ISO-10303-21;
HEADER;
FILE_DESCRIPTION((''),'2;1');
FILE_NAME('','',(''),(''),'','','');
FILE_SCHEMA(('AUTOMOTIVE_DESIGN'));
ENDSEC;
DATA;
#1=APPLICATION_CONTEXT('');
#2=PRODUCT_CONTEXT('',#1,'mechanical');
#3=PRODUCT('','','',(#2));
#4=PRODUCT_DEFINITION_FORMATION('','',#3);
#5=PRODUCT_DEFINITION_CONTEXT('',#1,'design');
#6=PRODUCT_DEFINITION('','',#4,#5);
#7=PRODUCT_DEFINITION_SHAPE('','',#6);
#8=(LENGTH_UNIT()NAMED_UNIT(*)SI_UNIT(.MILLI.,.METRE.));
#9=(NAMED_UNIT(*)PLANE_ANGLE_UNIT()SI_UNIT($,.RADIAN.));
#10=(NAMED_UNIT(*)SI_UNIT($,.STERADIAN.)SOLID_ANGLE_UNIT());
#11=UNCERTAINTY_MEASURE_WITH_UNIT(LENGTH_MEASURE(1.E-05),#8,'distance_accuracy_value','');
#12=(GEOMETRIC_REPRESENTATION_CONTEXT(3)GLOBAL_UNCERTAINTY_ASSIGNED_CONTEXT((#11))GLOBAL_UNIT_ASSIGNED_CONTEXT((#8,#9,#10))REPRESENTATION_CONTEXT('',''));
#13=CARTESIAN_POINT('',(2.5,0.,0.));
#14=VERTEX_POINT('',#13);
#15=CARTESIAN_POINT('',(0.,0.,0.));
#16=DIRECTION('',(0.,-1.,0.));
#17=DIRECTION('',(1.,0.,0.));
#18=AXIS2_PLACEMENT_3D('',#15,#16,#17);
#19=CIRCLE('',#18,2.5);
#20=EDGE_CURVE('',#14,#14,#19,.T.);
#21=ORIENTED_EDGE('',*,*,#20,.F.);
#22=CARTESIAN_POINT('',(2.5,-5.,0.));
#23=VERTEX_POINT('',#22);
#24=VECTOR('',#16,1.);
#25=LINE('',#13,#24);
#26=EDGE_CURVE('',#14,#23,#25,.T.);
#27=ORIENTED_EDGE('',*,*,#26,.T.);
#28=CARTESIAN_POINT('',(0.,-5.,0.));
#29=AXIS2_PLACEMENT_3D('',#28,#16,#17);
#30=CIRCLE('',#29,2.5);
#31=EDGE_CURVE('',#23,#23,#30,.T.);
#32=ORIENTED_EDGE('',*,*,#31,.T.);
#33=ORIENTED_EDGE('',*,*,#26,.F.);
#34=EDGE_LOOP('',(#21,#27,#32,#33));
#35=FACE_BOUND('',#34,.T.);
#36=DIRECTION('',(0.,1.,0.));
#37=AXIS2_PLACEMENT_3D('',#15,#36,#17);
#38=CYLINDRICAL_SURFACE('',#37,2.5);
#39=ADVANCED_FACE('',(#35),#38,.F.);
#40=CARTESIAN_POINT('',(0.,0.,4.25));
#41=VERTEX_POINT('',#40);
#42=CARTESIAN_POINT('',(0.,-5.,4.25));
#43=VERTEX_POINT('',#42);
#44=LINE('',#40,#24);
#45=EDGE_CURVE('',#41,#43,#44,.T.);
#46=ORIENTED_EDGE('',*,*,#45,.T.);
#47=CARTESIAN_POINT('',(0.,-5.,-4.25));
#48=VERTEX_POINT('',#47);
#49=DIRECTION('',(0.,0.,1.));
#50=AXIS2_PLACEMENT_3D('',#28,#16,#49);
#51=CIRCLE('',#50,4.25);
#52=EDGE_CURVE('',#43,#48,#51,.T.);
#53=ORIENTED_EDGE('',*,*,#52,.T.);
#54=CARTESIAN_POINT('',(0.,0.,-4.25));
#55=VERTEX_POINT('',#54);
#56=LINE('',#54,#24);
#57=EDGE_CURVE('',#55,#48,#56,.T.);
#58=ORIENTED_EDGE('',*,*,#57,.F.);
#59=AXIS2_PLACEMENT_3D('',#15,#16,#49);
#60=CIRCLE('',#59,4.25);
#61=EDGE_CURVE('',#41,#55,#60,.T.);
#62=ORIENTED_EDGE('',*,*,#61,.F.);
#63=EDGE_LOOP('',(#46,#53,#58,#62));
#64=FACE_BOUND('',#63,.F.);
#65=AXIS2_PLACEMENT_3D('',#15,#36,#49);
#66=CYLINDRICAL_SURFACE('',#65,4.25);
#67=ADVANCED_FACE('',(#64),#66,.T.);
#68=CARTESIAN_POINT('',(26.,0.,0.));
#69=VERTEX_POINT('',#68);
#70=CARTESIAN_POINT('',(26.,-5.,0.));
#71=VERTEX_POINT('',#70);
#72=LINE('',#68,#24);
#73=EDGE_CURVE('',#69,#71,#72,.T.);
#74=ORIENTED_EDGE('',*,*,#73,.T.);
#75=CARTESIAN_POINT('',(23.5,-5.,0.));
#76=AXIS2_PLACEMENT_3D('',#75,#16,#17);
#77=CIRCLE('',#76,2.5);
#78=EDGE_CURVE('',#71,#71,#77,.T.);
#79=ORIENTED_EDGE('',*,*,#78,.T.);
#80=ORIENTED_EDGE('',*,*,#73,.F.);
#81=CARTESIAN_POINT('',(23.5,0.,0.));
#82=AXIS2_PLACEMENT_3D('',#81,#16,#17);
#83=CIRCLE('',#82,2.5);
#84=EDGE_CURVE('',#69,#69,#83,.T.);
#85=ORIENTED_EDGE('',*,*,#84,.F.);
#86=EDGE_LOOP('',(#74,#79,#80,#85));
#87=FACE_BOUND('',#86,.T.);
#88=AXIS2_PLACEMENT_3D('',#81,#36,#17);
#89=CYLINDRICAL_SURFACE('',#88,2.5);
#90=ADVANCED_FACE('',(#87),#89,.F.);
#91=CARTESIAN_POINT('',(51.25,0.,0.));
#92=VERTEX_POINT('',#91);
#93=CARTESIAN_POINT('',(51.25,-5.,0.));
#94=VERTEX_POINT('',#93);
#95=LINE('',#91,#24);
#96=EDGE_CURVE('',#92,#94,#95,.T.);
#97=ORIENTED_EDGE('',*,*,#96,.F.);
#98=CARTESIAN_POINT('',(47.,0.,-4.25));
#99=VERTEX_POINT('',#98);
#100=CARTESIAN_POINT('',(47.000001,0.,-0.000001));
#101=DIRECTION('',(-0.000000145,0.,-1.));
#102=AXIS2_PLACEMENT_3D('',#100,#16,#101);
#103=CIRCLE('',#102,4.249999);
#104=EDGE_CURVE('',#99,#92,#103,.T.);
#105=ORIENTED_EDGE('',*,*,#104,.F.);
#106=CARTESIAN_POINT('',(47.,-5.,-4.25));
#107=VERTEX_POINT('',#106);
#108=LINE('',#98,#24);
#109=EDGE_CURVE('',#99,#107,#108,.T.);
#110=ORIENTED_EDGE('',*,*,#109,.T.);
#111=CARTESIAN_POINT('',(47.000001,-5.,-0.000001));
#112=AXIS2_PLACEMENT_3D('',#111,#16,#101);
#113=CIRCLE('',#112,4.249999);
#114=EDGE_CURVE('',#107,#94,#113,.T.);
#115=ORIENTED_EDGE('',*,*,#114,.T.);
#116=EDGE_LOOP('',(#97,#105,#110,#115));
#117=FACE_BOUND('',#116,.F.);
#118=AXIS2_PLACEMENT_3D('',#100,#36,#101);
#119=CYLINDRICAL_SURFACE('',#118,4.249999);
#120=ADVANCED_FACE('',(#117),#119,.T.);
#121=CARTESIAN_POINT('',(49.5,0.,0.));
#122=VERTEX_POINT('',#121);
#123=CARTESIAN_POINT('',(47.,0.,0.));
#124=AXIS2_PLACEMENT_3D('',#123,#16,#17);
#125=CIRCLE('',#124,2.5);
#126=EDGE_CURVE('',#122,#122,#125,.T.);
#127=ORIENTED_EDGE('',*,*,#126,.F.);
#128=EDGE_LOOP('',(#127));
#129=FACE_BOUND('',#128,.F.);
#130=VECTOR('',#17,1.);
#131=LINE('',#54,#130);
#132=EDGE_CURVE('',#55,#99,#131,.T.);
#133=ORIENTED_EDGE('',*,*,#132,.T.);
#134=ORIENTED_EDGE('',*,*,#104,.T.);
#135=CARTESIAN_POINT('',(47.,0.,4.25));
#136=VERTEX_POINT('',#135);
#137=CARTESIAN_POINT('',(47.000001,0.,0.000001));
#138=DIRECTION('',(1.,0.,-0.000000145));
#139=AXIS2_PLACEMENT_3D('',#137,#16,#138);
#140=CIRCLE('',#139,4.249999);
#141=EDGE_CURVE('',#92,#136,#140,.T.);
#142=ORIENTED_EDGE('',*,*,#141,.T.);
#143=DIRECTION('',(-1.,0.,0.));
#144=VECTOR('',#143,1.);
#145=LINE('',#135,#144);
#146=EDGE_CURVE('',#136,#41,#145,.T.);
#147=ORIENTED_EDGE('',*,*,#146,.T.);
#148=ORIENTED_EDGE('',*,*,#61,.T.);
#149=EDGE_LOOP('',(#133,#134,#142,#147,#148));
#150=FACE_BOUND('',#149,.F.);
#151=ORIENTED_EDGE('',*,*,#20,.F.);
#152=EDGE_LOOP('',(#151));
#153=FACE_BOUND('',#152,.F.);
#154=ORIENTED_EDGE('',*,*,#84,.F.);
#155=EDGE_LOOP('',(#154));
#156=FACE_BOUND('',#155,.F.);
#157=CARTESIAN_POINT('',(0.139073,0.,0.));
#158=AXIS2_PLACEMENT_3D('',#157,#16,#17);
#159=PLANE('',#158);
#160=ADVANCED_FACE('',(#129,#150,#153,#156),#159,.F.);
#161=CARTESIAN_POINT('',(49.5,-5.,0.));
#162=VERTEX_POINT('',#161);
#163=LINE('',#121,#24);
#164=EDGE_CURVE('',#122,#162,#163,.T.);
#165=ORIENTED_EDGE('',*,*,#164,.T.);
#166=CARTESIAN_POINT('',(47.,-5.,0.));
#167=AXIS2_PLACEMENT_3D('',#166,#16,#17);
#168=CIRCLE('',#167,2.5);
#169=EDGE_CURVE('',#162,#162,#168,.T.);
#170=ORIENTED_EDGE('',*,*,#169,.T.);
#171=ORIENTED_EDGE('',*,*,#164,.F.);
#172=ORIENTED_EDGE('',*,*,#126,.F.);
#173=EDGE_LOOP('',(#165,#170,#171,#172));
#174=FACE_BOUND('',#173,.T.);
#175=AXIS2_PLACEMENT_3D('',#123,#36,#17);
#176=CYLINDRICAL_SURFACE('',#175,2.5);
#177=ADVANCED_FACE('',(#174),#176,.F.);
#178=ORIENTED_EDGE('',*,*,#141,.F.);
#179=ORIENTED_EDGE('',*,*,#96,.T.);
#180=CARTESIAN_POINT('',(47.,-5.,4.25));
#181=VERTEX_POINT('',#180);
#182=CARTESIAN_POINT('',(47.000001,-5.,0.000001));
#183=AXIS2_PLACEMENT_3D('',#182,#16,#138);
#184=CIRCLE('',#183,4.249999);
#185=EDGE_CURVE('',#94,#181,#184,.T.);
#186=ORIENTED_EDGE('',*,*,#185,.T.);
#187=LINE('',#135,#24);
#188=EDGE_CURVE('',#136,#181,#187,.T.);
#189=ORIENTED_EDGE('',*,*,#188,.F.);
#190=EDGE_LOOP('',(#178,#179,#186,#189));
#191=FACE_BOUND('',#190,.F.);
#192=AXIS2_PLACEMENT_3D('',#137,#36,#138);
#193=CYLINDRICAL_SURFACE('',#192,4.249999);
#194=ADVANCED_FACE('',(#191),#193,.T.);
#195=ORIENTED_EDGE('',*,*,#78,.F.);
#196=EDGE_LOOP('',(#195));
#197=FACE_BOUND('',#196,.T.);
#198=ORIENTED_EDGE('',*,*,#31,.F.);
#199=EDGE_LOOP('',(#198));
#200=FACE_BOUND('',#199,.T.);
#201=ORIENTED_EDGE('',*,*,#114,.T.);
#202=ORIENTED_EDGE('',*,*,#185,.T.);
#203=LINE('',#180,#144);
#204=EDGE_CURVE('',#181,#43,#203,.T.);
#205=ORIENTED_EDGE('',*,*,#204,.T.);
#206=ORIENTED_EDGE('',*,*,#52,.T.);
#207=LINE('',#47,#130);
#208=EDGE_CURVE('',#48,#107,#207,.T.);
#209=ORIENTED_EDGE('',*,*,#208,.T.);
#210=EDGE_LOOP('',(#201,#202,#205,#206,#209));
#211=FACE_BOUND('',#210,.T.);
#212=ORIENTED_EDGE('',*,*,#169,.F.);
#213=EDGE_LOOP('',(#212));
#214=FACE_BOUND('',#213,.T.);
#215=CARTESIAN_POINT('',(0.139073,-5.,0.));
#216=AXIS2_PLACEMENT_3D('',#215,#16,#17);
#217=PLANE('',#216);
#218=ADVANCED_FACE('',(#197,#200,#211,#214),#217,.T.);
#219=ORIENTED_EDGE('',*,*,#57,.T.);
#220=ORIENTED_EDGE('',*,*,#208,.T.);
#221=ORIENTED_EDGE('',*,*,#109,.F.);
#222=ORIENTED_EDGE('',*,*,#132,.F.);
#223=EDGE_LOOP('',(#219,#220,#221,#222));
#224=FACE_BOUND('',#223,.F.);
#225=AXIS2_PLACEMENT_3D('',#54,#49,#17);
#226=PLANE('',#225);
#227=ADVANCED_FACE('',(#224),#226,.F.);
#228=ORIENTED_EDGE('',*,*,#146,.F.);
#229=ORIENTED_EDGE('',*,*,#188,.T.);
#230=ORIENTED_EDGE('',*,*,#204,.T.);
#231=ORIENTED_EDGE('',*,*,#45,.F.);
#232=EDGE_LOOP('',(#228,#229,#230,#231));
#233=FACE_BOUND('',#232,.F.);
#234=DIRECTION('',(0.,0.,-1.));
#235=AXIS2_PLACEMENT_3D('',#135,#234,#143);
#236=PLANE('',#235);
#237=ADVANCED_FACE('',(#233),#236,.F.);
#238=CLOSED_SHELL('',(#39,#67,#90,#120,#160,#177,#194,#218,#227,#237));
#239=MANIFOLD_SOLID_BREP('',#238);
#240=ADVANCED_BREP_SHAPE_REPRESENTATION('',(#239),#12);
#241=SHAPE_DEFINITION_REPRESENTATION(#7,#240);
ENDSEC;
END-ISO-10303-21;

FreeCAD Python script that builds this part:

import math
import FreeCAD as App
import Part
import Sketcher

V = App.Vector

doc = App.newDocument("Part")
body = doc.addObject("PartDesign::Body", "Body")

sketch1 = body.newObject("Sketcher::SketchObject", "Sketch")
sketch1.AttachmentSupport = (doc.getObject("XZ_Plane"), [""])
sketch1.MapMode = "FlatFace"
sketch1.addGeometry([
    Part.ArcOfCircle(Part.Circle(V(0, 0, 0), V(0, 0, 1), 4.2), math.radians(90), math.radians(270)),
    Part.LineSegment(V(0, -4.2, 0), V(47, -4.2, 0)),
    Part.ArcOfCircle(Part.Circle(V(47, 0, 0), V(0, 0, 1), 4.2), math.radians(-90), math.radians(0)),
    Part.ArcOfCircle(Part.Circle(V(47, 0, 0), V(0, 0, 1), 4.2), math.radians(0), math.radians(90)),
    Part.LineSegment(V(47, 4.2, 0), V(0, 4.2, 0)),
    Part.Circle(V(0, 0, 0), V(0, 0, 1), 2.5),
    Part.Circle(V(23.5, 0, 0), V(0, 0, 1), 2.5),
    Part.Circle(V(47, 0, 0), V(0, 0, 1), 2.5),
], False)
sketch1.addConstraint([
    Sketcher.Constraint("Tangent", 0, 2, 1, 1),
    Sketcher.Constraint("Tangent", 1, 2, 2, 1),
    Sketcher.Constraint("Tangent", 2, 2, 3, 1),
    Sketcher.Constraint("Tangent", 3, 2, 4, 1),
    Sketcher.Constraint("Tangent", 4, 2, 0, 1),
    Sketcher.Constraint("Horizontal", 1),
    Sketcher.Constraint("Horizontal", 4),
    Sketcher.Constraint("Coincident", 0, 3, -1, 1),
    Sketcher.Constraint("Coincident", 5, 3, -1, 1),
    Sketcher.Constraint("Coincident", 7, 3, 2, 3),
    Sketcher.Constraint("Equal", 0, 2),
    Sketcher.Constraint("Equal", 5, 6),
    Sketcher.Constraint("Equal", 6, 7),
    Sketcher.Constraint("PointOnObject", 6, 3, -1),
    Sketcher.Constraint("PointOnObject", 2, 2, -1),
    Sketcher.Constraint("Diameter", 5, 5.0),
    Sketcher.Constraint("DistanceX", 1, 1, 1, 2, 47.0),
    Sketcher.Constraint("Radius", 0, 4.25),
    Sketcher.Constraint("DistanceX", -1, 1, 6, 3, 23.5),
])
pad1 = body.newObject("PartDesign::Pad", "Pad")
pad1.Profile = sketch1
pad1.Length = 5

doc.recompute()
